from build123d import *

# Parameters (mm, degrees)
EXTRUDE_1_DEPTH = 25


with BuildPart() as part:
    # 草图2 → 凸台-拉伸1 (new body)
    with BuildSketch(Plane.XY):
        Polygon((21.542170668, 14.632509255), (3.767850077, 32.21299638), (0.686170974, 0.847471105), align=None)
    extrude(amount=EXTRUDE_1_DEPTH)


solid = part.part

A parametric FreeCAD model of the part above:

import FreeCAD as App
import Part
import Sketcher
from FreeCAD import Vector


def add_polygon(sketch, points):
    """Adds a closed chain of lines whose ends are joined by coincident constraints."""
    first, n = sketch.GeometryCount, len(points)
    for a, b in zip(points, points[1:] + points[:1]):
        sketch.addGeometry(Part.LineSegment(App.Vector(*a, 0), App.Vector(*b, 0)), False)
    for i in range(n):
        sketch.addConstraint(Sketcher.Constraint("Coincident", first + i, 2, first + (i + 1) % n, 1))

doc = App.newDocument("Part")
body = doc.addObject("PartDesign::Body", "Body")

# Sketch on XY plane
sketch1 = body.newObject("Sketcher::SketchObject", "Sketch")
sketch1.AttachmentSupport = (doc.getObject("XY_Plane"), [""])
sketch1.MapMode = "FlatFace"
add_polygon(sketch1, [(22, 15), (4, 32), (1, 1)])  # lines 0-2
sketch1.addConstraint([
    Sketcher.Constraint("Equal", 0, 2),
    Sketcher.Constraint("Distance", 0, 25.0),
    Sketcher.Constraint("DistanceX", 1, 2, 2, 2, 20.856),
    Sketcher.Constraint("Distance", 1, 31.51655),
    Sketcher.Constraint("DistanceX", -1, 1, 0, 2, 3.76785),
    Sketcher.Constraint("DistanceY", -1, 1, 1, 2, 0.847471),
])
pad1 = body.newObject("PartDesign::Pad", "Pad")
pad1.Profile = sketch1
pad1.Length = 25

doc.recompute()
